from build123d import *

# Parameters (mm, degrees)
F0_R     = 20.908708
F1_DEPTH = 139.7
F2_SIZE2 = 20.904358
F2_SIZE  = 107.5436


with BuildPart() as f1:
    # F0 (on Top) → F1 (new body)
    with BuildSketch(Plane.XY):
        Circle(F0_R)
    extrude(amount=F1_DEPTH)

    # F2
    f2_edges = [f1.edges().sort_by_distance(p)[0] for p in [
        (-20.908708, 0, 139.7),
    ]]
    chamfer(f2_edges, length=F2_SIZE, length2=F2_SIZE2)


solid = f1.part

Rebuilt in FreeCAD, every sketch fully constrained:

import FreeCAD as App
import Part
import Sketcher
Q = App.Units.Quantity


def edges_at(feature, points):
    """Names of the edges that pass closest to the given points."""
    edges = feature.Shape.Edges
    near = lambda p: min(range(len(edges)), key=lambda i: edges[i].distToShape(Part.Vertex(*p))[0])
    return sorted({f"Edge{near(p) + 1}" for p in points})

doc = App.newDocument("Part")
body = doc.addObject("PartDesign::Body", "Body")

# Sketch on XY plane
sketch1 = body.newObject("Sketcher::SketchObject", "Sketch")
sketch1.AttachmentSupport = (doc.getObject("XY_Plane"), [""])
sketch1.MapMode = "FlatFace"
sketch1.addGeometry(Part.Circle(App.Vector(0, 0, 0), App.Vector(0, 0, 1), 21), False)
sketch1.addConstraint(Sketcher.Constraint("Coincident", 0, 3, -1, 1))
sketch1.addConstraint(Sketcher.Constraint("Diameter", 0, Q("41.817416 mm")))
pad1 = body.newObject("PartDesign::Pad", "Pad")
pad1.Profile = sketch1
pad1.Length = Q("5.5 in")
doc.recompute()

chamfer = body.newObject("PartDesign::Chamfer", "Chamfer")
chamfer.Base = (pad1, edges_at(pad1, [(-20.909, 0, 139.7)]))
chamfer.ChamferType = "Two distances"
chamfer.Size = Q("4.234 in")
chamfer.Size2 = 20.904358

doc.recompute()
